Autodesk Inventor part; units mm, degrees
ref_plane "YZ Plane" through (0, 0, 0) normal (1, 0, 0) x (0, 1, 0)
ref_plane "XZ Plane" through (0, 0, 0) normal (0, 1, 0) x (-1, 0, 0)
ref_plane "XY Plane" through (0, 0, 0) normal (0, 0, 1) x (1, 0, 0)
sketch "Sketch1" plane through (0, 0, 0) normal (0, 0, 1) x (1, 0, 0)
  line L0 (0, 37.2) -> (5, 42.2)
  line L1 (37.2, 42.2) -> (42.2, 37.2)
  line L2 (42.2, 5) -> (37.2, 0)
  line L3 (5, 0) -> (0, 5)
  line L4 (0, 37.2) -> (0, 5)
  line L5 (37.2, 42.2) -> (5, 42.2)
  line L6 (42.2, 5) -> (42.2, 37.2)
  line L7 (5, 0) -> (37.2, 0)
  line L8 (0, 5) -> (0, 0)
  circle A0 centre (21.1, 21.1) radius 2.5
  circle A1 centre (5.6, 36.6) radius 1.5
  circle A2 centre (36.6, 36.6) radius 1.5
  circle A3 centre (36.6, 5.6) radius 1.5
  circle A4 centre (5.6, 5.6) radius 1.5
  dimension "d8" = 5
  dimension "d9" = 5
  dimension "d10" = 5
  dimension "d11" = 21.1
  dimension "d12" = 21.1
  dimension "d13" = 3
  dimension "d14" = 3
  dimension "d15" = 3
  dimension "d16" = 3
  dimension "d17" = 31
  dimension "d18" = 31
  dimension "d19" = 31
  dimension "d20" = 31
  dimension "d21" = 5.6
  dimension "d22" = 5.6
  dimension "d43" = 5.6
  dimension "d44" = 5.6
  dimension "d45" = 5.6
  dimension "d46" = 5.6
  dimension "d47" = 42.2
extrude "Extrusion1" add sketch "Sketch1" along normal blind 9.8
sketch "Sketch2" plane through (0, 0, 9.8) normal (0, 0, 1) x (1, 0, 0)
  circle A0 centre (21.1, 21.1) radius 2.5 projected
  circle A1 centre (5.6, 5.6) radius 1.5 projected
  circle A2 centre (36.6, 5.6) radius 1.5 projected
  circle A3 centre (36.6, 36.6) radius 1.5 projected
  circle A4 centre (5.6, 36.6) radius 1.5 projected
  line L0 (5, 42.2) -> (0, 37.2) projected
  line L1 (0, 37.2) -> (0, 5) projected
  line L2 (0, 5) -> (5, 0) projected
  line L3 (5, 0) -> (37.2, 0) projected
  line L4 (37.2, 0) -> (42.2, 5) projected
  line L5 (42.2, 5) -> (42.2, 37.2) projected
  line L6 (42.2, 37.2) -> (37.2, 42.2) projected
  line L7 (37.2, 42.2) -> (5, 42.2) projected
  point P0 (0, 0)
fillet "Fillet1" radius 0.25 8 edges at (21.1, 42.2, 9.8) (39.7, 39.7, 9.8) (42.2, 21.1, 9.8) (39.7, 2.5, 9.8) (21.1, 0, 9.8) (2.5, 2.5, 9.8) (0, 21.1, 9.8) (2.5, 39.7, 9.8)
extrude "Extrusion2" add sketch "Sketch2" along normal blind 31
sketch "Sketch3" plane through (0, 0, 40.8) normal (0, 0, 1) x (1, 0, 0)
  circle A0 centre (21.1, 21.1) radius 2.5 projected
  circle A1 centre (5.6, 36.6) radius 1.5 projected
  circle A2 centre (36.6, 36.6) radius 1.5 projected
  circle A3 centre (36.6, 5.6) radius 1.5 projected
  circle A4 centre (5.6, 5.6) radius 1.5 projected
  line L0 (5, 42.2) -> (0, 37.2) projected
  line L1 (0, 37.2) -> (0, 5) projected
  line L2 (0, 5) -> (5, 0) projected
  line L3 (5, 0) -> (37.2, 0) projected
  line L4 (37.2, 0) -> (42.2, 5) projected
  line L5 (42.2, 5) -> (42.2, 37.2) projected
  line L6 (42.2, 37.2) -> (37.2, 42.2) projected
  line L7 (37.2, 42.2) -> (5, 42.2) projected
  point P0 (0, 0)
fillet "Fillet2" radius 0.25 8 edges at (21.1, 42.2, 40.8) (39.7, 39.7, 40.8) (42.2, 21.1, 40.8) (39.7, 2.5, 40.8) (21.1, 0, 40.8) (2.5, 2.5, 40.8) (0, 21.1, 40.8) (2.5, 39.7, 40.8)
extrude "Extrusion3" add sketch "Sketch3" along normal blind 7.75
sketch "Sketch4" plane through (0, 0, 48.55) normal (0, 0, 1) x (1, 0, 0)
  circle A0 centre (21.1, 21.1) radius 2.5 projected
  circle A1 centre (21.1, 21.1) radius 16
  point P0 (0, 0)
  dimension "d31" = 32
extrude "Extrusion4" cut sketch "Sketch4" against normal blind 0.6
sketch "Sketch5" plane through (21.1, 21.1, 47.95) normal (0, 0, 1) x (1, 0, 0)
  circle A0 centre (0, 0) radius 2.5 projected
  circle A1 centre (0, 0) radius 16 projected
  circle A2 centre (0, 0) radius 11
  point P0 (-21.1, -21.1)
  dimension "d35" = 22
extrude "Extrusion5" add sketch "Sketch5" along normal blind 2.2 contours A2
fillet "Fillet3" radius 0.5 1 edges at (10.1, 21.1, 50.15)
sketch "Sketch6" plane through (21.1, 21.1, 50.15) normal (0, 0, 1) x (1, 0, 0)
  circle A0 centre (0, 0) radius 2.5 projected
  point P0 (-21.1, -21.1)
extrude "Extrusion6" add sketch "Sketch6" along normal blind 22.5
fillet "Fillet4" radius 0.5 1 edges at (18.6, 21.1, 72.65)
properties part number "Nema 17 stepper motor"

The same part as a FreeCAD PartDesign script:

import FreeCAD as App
import Part
import Sketcher

V = App.Vector


def edges_at(feature, points):
    """Names of the edges that pass closest to the given points."""
    edges = feature.Shape.Edges
    near = lambda p: min(range(len(edges)), key=lambda i: edges[i].distToShape(Part.Vertex(*p))[0])
    return sorted({f"Edge{near(p) + 1}" for p in points})


def add_polygon(sketch, points):
    """Adds a closed chain of lines whose ends are joined by coincident constraints."""
    first, n = sketch.GeometryCount, len(points)
    for a, b in zip(points, points[1:] + points[:1]):
        sketch.addGeometry(Part.LineSegment(App.Vector(*a, 0), App.Vector(*b, 0)), False)
    for i in range(n):
        sketch.addConstraint(Sketcher.Constraint("Coincident", first + i, 2, first + (i + 1) % n, 1))

doc = App.newDocument("Part")
body = doc.addObject("PartDesign::Body", "Body")
body.AllowCompound = True

sketch1 = body.newObject("Sketcher::SketchObject", "Sketch")
sketch1.AttachmentSupport = (doc.getObject("XY_Plane"), [""])
sketch1.MapMode = "FlatFace"
add_polygon(sketch1, [(5, 42.2), (0, 37.2), (0, 5), (5, 0), (37.2, 0), (42.2, 5), (42.2, 37.2), (37.2, 42.2)])
sketch1.addGeometry(Part.Circle(V(5.6, 5.6, 0), V(0, 0, 1), 1.5), False)
sketch1.addGeometry(Part.Circle(V(36.6, 5.6, 0), V(0, 0, 1), 1.5), False)
sketch1.addGeometry(Part.Circle(V(5.6, 36.6, 0), V(0, 0, 1), 1.5), False)
sketch1.addGeometry(Part.Circle(V(21.1, 21.1, 0), V(0, 0, 1), 2.5), False)
sketch1.addGeometry(Part.Circle(V(36.6, 36.6, 0), V(0, 0, 1), 1.5), False)
sketch1.addConstraint([
    Sketcher.Constraint("Vertical", 1),
    Sketcher.Constraint("Horizontal", 3),
    Sketcher.Constraint("Vertical", 5),
    Sketcher.Constraint("Horizontal", 7),
    Sketcher.Constraint("Equal", 8, 9),
    Sketcher.Constraint("Equal", 9, 10),
    Sketcher.Constraint("Equal", 10, 12),
    Sketcher.Constraint("PointOnObject", 0, 2, -2),
    Sketcher.Constraint("PointOnObject", 2, 2, -1),
    Sketcher.Constraint("Perpendicular", 0, 2),
    Sketcher.Constraint("Perpendicular", 2, 4),
    Sketcher.Constraint("Perpendicular", 4, 6),
    Sketcher.Constraint("Horizontal", 8, 3, 9, 3),
    Sketcher.Constraint("Horizontal", 10, 3, 12, 3),
    Sketcher.Constraint("Horizontal", 1, 2, 4, 2),
    Sketcher.Constraint("Horizontal", 0, 2, 5, 2),
    Sketcher.Constraint("Vertical", 8, 3, 10, 3),
    Sketcher.Constraint("Vertical", 9, 3, 12, 3),
    Sketcher.Constraint("Vertical", 3, 2, 6, 2),
    Sketcher.Constraint("Vertical", 2, 2, 7, 2),
    Sketcher.Constraint("Equal", 7, 1),
    Sketcher.Constraint("Diameter", 8, 3.0),
    Sketcher.Constraint("Diameter", 11, 5.0),
    Sketcher.Constraint("DistanceY", -1, 1, 1, 2, 5.0),
    Sketcher.Constraint("DistanceX", 8, 3, 9, 3, 31.0),
    Sketcher.Constraint("DistanceY", 8, 3, 10, 3, 31.0),
    Sketcher.Constraint("DistanceX", -1, 1, 8, 3, 5.6),
    Sketcher.Constraint("DistanceY", -1, 1, 8, 3, 5.6),
    Sketcher.Constraint("DistanceX", -1, 1, 11, 3, 21.1),
    Sketcher.Constraint("DistanceY", -1, 1, 11, 3, 21.1),
    Sketcher.Constraint("DistanceX", -1, 1, 4, 2, 42.2),
])
pad1 = body.newObject("PartDesign::Pad", "Pad")
pad1.Profile = sketch1
pad1.Length = 9.8
doc.recompute()

fillet = body.newObject("PartDesign::Fillet", "Fillet")
fillet.Base = (pad1, edges_at(pad1, [
    (21.1, 42.2, 9.8),
    (39.7, 39.7, 9.8),
    (42.2, 21.1, 9.8),
    (39.7, 2.5, 9.8),
    (21.1, 0, 9.8),
    (2.5, 2.5, 9.8),
    (0, 21.1, 9.8),
    (2.5, 39.7, 9.8),
]))
fillet.Radius = 0.25

sketch2 = body.newObject("Sketcher::SketchObject", "Sketch001")
sketch2.AttachmentSupport = (doc.getObject("XY_Plane"), [""])
sketch2.MapMode = "FlatFace"
sketch2.AttachmentOffset = App.Placement(V(0, 0, 9.8), App.Rotation())
add_polygon(sketch2, [(37.2, 42.2), (5, 42.2), (0, 37.2), (0, 5), (5, 0), (37.2, 0), (42.2, 5), (42.2, 37.2)])
sketch2.addGeometry(Part.Circle(V(5.6, 5.6, 0), V(0, 0, 1), 1.5), False)
sketch2.addGeometry(Part.Circle(V(36.6, 5.6, 0), V(0, 0, 1), 1.5), False)
sketch2.addGeometry(Part.Circle(V(5.6, 36.6, 0), V(0, 0, 1), 1.5), False)
sketch2.addGeometry(Part.Circle(V(21.1, 21.1, 0), V(0, 0, 1), 2.5), False)
sketch2.addGeometry(Part.Circle(V(36.6, 36.6, 0), V(0, 0, 1), 1.5), False)
sketch2.addConstraint([
    Sketcher.Constraint("Horizontal", 0),
    Sketcher.Constraint("Vertical", 2),
    Sketcher.Constraint("Horizontal", 4),
    Sketcher.Constraint("Vertical", 6),
    Sketcher.Constraint("Equal", 8, 9),
    Sketcher.Constraint("Equal", 9, 10),
    Sketcher.Constraint("Equal", 10, 12),
    Sketcher.Constraint("PointOnObject", 1, 2, -2),
    Sketcher.Constraint("PointOnObject", 3, 2, -1),
    Sketcher.Constraint("Perpendicular", 1, 3),
    Sketcher.Constraint("Perpendicular", 3, 5),
    Sketcher.Constraint("Perpendicular", 5, 7),
    Sketcher.Constraint("Horizontal", 8, 3, 9, 3),
    Sketcher.Constraint("Horizontal", 10, 3, 12, 3),
    Sketcher.Constraint("Horizontal", 2, 2, 5, 2),
    Sketcher.Constraint("Horizontal", 1, 2, 6, 2),
    Sketcher.Constraint("Vertical", 8, 3, 10, 3),
    Sketcher.Constraint("Vertical", 9, 3, 12, 3),
    Sketcher.Constraint("Vertical", 0, 2, 3, 2),
    Sketcher.Constraint("Vertical", 4, 2, 7, 2),
    Sketcher.Constraint("Equal", 4, 2),
    Sketcher.Constraint("Diameter", 8, 3.0),
    Sketcher.Constraint("Diameter", 11, 5.0),
    Sketcher.Constraint("DistanceX", 0, 2, 0, 1, 32.2),
    Sketcher.Constraint("DistanceX", -1, 1, 0, 2, 5.0),
    Sketcher.Constraint("DistanceX", 8, 3, 9, 3, 31.0),
    Sketcher.Constraint("DistanceY", 8, 3, 10, 3, 31.0),
    Sketcher.Constraint("DistanceX", -1, 1, 8, 3, 5.6),
    Sketcher.Constraint("DistanceY", -1, 1, 8, 3, 5.6),
    Sketcher.Constraint("DistanceX", -1, 1, 11, 3, 21.1),
    Sketcher.Constraint("DistanceY", -1, 1, 11, 3, 21.1),
])
pad2 = body.newObject("PartDesign::Pad", "Pad001")
pad2.Profile = sketch2
pad2.Length = 31
doc.recompute()

fillet2 = body.newObject("PartDesign::Fillet", "Fillet001")
fillet2.Base = (pad2, edges_at(pad2, [
    (21.1, 42.2, 40.8),
    (39.7, 39.7, 40.8),
    (42.2, 21.1, 40.8),
    (39.7, 2.5, 40.8),
    (21.1, 0, 40.8),
    (2.5, 2.5, 40.8),
    (0, 21.1, 40.8),
    (2.5, 39.7, 40.8),
]))
fillet2.Radius = 0.25

sketch3 = body.newObject("Sketcher::SketchObject", "Sketch002")
sketch3.AttachmentSupport = (doc.getObject("XY_Plane"), [""])
sketch3.MapMode = "FlatFace"
sketch3.AttachmentOffset = App.Placement(V(0, 0, 40.8), App.Rotation())
add_polygon(sketch3, [(37.2, 42.2), (5, 42.2), (0, 37.2), (0, 5), (5, 0), (37.2, 0), (42.2, 5), (42.2, 37.2)])
sketch3.addGeometry(Part.Circle(V(5.6, 5.6, 0), V(0, 0, 1), 1.5), False)
sketch3.addGeometry(Part.Circle(V(36.6, 5.6, 0), V(0, 0, 1), 1.5), False)
sketch3.addGeometry(Part.Circle(V(5.6, 36.6, 0), V(0, 0, 1), 1.5), False)
sketch3.addGeometry(Part.Circle(V(21.1, 21.1, 0), V(0, 0, 1), 2.5), False)
sketch3.addGeometry(Part.Circle(V(36.6, 36.6, 0), V(0, 0, 1), 1.5), False)
sketch3.addConstraint([
    Sketcher.Constraint("Horizontal", 0),
    Sketcher.Constraint("Vertical", 2),
    Sketcher.Constraint("Horizontal", 4),
    Sketcher.Constraint("Vertical", 6),
    Sketcher.Constraint("Equal", 8, 9),
    Sketcher.Constraint("Equal", 9, 10),
    Sketcher.Constraint("Equal", 10, 12),
    Sketcher.Constraint("PointOnObject", 1, 2, -2),
    Sketcher.Constraint("PointOnObject", 3, 2, -1),
    Sketcher.Constraint("Perpendicular", 1, 3),
    Sketcher.Constraint("Perpendicular", 3, 5),
    Sketcher.Constraint("Perpendicular", 5, 7),
    Sketcher.Constraint("Horizontal", 8, 3, 9, 3),
    Sketcher.Constraint("Horizontal", 10, 3, 12, 3),
    Sketcher.Constraint("Horizontal", 2, 2, 5, 2),
    Sketcher.Constraint("Horizontal", 1, 2, 6, 2),
    Sketcher.Constraint("Vertical", 8, 3, 10, 3),
    Sketcher.Constraint("Vertical", 9, 3, 12, 3),
    Sketcher.Constraint("Vertical", 0, 2, 3, 2),
    Sketcher.Constraint("Vertical", 4, 2, 7, 2),
    Sketcher.Constraint("Equal", 4, 2),
    Sketcher.Constraint("Diameter", 8, 3.0),
    Sketcher.Constraint("Diameter", 11, 5.0),
    Sketcher.Constraint("DistanceX", 0, 2, 0, 1, 32.2),
    Sketcher.Constraint("DistanceX", -1, 1, 0, 2, 5.0),
    Sketcher.Constraint("DistanceX", 8, 3, 9, 3, 31.0),
    Sketcher.Constraint("DistanceY", 8, 3, 10, 3, 31.0),
    Sketcher.Constraint("DistanceX", -1, 1, 8, 3, 5.6),
    Sketcher.Constraint("DistanceY", -1, 1, 8, 3, 5.6),
    Sketcher.Constraint("DistanceX", -1, 1, 11, 3, 21.1),
    Sketcher.Constraint("DistanceY", -1, 1, 11, 3, 21.1),
])
pad3 = body.newObject("PartDesign::Pad", "Pad002")
pad3.Profile = sketch3
pad3.Length = 7.75

sketch4 = body.newObject("Sketcher::SketchObject", "Sketch003")
sketch4.AttachmentSupport = (doc.getObject("XY_Plane"), [""])
sketch4.MapMode = "FlatFace"
sketch4.AttachmentOffset = App.Placement(V(0, 0, 48.55), App.Rotation())
sketch4.addGeometry([
    Part.Circle(V(21.1, 21.1, 0), V(0, 0, 1), 16),
    Part.Circle(V(21.1, 21.1, 0), V(0, 0, 1), 2.5),
], False)
sketch4.addConstraint([
    Sketcher.Constraint("Coincident", 1, 3, 0, 3),
    Sketcher.Constraint("Diameter", 0, 32.0),
    Sketcher.Constraint("Diameter", 1, 5.0),
    Sketcher.Constraint("DistanceX", -1, 1, 0, 3, 21.1),
    Sketcher.Constraint("DistanceY", -1, 1, 0, 3, 21.1),
])
pocket1 = body.newObject("PartDesign::Pocket", "Pocket")
pocket1.Profile = sketch4
pocket1.Length = 0.6

sketch5 = body.newObject("Sketcher::SketchObject", "Sketch004")
sketch5.AttachmentSupport = (doc.getObject("XY_Plane"), [""])
sketch5.MapMode = "FlatFace"
sketch5.AttachmentOffset = App.Placement(V(0, 0, 47.95), App.Rotation())
sketch5.addGeometry([
    Part.Circle(V(21.1, 21.1, 0), V(0, 0, 1), 11),
    Part.Circle(V(21.1, 21.1, 0), V(0, 0, 1), 2.5),
], False)
sketch5.addConstraint([
    Sketcher.Constraint("Coincident", 1, 3, 0, 3),
    Sketcher.Constraint("Diameter", 0, 22.0),
    Sketcher.Constraint("Diameter", 1, 5.0),
    Sketcher.Constraint("DistanceX", -1, 1, 0, 3, 21.1),
    Sketcher.Constraint("DistanceY", -1, 1, 0, 3, 21.1),
])
pad4 = body.newObject("PartDesign::Pad", "Pad003")
pad4.Profile = sketch5
pad4.Length = 2.2
doc.recompute()

fillet3 = body.newObject("PartDesign::Fillet", "Fillet002")
fillet3.Base = (pad4, edges_at(pad4, [(10.1, 21.1, 50.15)]))
fillet3.Radius = 0.5

sketch6 = body.newObject("Sketcher::SketchObject", "Sketch005")
sketch6.AttachmentSupport = (doc.getObject("XY_Plane"), [""])
sketch6.MapMode = "FlatFace"
sketch6.AttachmentOffset = App.Placement(V(0, 0, 50.15), App.Rotation())
sketch6.addGeometry(Part.Circle(V(21.1, 21.1, 0), V(0, 0, 1), 2.5), False)
sketch6.addConstraint([
    Sketcher.Constraint("Diameter", 0, 5.0),
    Sketcher.Constraint("DistanceX", -1, 1, 0, 3, 21.1),
    Sketcher.Constraint("DistanceY", -1, 1, 0, 3, 21.1),
])
pad5 = body.newObject("PartDesign::Pad", "Pad004")
pad5.Profile = sketch6
pad5.Length = 22.5
doc.recompute()

fillet4 = body.newObject("PartDesign::Fillet", "Fillet003")
fillet4.Base = (pad5, edges_at(pad5, [(18.6, 21.1, 72.65)]))
fillet4.Radius = 0.5

doc.recompute()
